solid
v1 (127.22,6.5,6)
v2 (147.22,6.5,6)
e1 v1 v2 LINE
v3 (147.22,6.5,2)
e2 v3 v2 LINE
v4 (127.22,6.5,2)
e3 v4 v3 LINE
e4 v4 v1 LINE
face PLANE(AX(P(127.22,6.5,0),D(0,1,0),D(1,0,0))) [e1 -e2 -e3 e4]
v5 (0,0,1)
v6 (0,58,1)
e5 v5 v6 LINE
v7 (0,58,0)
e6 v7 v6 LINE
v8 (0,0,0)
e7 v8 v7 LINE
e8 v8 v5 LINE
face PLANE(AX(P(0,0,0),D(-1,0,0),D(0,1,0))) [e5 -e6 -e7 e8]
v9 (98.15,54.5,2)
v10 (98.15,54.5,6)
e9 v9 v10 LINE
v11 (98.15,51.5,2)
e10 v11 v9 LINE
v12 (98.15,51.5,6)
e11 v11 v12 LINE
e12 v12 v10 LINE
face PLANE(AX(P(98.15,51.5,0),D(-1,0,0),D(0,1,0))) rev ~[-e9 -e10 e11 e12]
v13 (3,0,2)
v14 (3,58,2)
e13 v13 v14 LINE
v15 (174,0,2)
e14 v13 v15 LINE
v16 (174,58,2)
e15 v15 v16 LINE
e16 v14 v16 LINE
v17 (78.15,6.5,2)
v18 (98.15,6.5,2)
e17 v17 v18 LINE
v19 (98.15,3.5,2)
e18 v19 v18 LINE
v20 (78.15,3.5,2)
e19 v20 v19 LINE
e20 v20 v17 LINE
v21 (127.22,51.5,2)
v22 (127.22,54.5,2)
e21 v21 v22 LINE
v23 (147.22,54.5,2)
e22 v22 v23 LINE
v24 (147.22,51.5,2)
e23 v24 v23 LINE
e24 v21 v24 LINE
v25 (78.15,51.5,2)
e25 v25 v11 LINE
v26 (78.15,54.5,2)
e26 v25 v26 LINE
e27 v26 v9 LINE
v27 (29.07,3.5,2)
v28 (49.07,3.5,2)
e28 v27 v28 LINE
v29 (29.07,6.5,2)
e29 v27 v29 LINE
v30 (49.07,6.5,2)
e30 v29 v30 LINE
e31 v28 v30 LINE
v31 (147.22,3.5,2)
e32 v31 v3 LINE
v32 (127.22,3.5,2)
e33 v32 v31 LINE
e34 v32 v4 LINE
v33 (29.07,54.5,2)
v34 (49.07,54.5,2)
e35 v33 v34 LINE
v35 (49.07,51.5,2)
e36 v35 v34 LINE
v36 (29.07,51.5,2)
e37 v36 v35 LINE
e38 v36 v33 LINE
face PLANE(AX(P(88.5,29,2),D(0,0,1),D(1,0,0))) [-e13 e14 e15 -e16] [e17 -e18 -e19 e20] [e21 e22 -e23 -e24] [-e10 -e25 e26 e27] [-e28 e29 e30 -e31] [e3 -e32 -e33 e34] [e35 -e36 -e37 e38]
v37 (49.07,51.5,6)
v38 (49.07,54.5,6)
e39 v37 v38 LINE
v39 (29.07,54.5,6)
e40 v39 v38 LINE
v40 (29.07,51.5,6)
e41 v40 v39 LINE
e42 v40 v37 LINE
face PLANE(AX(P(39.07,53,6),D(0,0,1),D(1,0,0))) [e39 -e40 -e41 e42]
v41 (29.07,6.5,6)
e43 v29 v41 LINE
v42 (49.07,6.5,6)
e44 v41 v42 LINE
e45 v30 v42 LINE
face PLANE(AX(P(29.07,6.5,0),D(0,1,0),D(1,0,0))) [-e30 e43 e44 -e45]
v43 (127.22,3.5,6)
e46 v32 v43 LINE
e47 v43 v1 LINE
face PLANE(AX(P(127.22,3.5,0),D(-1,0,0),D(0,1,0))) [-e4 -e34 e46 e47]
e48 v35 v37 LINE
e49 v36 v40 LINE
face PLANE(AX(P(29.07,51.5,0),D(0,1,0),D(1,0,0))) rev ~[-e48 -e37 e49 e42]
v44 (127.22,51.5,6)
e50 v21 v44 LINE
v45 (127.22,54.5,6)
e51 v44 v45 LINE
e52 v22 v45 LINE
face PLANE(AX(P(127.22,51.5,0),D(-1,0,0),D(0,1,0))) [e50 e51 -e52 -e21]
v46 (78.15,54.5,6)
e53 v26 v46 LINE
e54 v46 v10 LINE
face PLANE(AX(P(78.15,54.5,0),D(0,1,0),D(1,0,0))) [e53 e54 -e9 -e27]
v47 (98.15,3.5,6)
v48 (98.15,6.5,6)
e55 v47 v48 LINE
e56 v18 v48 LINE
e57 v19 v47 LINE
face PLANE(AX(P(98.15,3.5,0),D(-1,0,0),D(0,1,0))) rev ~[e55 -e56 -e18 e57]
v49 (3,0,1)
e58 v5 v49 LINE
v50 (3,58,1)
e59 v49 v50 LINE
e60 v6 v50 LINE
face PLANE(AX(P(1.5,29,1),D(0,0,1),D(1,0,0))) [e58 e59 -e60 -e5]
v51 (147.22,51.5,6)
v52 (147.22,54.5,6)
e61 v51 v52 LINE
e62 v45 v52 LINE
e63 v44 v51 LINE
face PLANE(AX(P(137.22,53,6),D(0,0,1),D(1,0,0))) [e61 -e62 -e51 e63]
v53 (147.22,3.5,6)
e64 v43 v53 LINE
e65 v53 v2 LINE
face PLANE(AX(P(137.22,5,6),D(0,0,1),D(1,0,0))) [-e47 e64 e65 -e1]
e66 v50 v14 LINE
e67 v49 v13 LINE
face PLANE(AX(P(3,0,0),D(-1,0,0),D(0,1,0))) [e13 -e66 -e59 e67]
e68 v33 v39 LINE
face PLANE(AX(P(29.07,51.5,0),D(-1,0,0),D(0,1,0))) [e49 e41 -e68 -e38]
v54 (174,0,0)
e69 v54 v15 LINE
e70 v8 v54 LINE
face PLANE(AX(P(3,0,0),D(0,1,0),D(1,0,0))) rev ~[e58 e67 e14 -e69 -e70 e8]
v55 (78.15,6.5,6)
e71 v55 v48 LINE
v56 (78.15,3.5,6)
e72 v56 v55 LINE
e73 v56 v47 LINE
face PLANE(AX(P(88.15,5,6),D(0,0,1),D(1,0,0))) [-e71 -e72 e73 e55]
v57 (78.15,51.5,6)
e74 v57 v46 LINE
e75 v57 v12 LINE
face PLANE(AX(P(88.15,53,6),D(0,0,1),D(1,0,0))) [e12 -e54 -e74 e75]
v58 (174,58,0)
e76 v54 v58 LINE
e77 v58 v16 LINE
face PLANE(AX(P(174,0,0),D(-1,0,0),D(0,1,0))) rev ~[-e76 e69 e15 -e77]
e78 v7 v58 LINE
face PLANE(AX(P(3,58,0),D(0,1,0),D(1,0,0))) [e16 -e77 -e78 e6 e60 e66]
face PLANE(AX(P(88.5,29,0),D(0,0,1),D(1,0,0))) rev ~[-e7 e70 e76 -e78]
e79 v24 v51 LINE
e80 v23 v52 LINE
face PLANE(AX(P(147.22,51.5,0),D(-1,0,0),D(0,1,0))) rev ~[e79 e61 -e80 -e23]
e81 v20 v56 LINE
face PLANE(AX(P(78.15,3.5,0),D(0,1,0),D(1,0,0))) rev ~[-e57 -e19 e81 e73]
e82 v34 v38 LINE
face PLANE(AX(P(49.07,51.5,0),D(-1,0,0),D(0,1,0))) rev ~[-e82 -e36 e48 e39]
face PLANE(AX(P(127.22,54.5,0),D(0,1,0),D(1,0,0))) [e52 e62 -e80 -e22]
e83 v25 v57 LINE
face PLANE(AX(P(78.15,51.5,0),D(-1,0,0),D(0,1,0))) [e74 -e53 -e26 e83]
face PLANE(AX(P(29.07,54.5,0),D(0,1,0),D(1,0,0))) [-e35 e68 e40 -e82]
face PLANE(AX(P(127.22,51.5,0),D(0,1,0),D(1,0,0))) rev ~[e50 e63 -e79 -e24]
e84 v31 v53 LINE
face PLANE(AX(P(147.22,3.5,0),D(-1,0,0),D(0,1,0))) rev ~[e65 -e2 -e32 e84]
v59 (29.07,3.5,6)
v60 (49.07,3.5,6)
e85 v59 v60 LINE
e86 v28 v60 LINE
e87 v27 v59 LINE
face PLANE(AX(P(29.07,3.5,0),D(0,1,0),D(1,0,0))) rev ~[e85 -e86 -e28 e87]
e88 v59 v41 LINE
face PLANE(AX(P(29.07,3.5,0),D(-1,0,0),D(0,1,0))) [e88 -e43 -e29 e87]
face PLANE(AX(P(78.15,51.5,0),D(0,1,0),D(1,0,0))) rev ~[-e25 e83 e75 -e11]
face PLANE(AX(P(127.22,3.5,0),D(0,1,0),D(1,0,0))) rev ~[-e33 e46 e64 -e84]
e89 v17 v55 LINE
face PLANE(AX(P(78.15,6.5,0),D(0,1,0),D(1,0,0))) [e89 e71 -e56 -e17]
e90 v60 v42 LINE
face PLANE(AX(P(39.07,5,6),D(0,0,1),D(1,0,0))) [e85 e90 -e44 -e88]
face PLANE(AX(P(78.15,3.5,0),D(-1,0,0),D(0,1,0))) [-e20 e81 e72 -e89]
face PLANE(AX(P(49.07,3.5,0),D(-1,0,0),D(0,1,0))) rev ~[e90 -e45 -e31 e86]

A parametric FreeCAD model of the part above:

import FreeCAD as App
import Part
import Sketcher
Q = App.Units.Quantity

doc = App.newDocument("Part")
body = doc.addObject("PartDesign::Body", "Body")

# Sketch on XY plane
sketch1 = doc.addObject("Sketcher::SketchObject", "Sketch")
body.addObject(sketch1)
sketch1.AttachmentSupport = (doc.XY_Plane, [""])
sketch1.MapMode = "FlatFace"
sketch1.addGeometry([
    Part.LineSegment(App.Vector(127.2, 54.5, 0), App.Vector(127.2, 51.5, 0)),
    Part.LineSegment(App.Vector(127.2, 51.5, 0), App.Vector(147.2, 51.5, 0)),
    Part.LineSegment(App.Vector(147.2, 51.5, 0), App.Vector(147.2, 54.5, 0)),
    Part.LineSegment(App.Vector(147.2, 54.5, 0), App.Vector(127.2, 54.5, 0)),
], False)
sketch1.addConstraint([
    Sketcher.Constraint("Coincident", 0, 2, 1, 1),
    Sketcher.Constraint("Coincident", 1, 2, 2, 1),
    Sketcher.Constraint("Coincident", 2, 2, 3, 1),
    Sketcher.Constraint("Coincident", 3, 2, 0, 1),
    Sketcher.Constraint("Vertical", 0),
    Sketcher.Constraint("Horizontal", 1),
    Sketcher.Constraint("Vertical", 2),
    Sketcher.Constraint("Horizontal", 3),
    Sketcher.Constraint("DistanceX", 1, 1, 1, 2, Q("20 mm")),
    Sketcher.Constraint("DistanceY", 0, 2, 0, 1, Q("3 mm")),
    Sketcher.Constraint("DistanceY", -1, 1, 0, 2, Q("51.5 mm")),
    Sketcher.Constraint("DistanceX", -1, 1, 0, 2, Q("127.22 mm")),
])
pad1 = doc.addObject("PartDesign::Pad", "Pad")
body.addObject(pad1)
pad1.Profile = sketch1
pad1.Length = 6
body2 = doc.addObject("PartDesign::Body", "Body001")

# Sketch on XY plane
sketch2 = doc.addObject("Sketcher::SketchObject", "Sketch001")
body2.addObject(sketch2)
sketch2.AttachmentSupport = (doc.getObject("XY_Plane001"), [""])
sketch2.MapMode = "FlatFace"
sketch2.addGeometry([
    Part.LineSegment(App.Vector(78.2, 54.5, 0), App.Vector(78.2, 51.5, 0)),
    Part.LineSegment(App.Vector(78.2, 51.5, 0), App.Vector(98.2, 51.5, 0)),
    Part.LineSegment(App.Vector(98.2, 51.5, 0), App.Vector(98.2, 54.5, 0)),
    Part.LineSegment(App.Vector(98.2, 54.5, 0), App.Vector(78.2, 54.5, 0)),
], False)
sketch2.addConstraint([
    Sketcher.Constraint("Coincident", 0, 2, 1, 1),
    Sketcher.Constraint("Coincident", 1, 2, 2, 1),
    Sketcher.Constraint("Coincident", 2, 2, 3, 1),
    Sketcher.Constraint("Coincident", 3, 2, 0, 1),
    Sketcher.Constraint("Vertical", 0),
    Sketcher.Constraint("Horizontal", 1),
    Sketcher.Constraint("Vertical", 2),
    Sketcher.Constraint("Horizontal", 3),
    Sketcher.Constraint("DistanceX", 1, 1, 1, 2, Q("20 mm")),
    Sketcher.Constraint("DistanceY", 0, 2, 0, 1, Q("3 mm")),
    Sketcher.Constraint("DistanceY", -1, 1, 0, 2, Q("51.5 mm")),
    Sketcher.Constraint("DistanceX", -1, 1, 0, 2, Q("78.15 mm")),
])
pad2 = doc.addObject("PartDesign::Pad", "Pad001")
body2.addObject(pad2)
pad2.Profile = sketch2
pad2.Length = 6
body3 = doc.addObject("PartDesign::Body", "Body002")

# Sketch on XY plane
sketch3 = doc.addObject("Sketcher::SketchObject", "Sketch002")
body3.addObject(sketch3)
sketch3.AttachmentSupport = (doc.getObject("XY_Plane002"), [""])
sketch3.MapMode = "FlatFace"
sketch3.addGeometry([
    Part.LineSegment(App.Vector(29.1, 54.5, 0), App.Vector(29.1, 51.5, 0)),
    Part.LineSegment(App.Vector(29.1, 51.5, 0), App.Vector(49.1, 51.5, 0)),
    Part.LineSegment(App.Vector(49.1, 51.5, 0), App.Vector(49.1, 54.5, 0)),
    Part.LineSegment(App.Vector(49.1, 54.5, 0), App.Vector(29.1, 54.5, 0)),
], False)
sketch3.addConstraint([
    Sketcher.Constraint("Coincident", 0, 2, 1, 1),
    Sketcher.Constraint("Coincident", 1, 2, 2, 1),
    Sketcher.Constraint("Coincident", 2, 2, 3, 1),
    Sketcher.Constraint("Coincident", 3, 2, 0, 1),
    Sketcher.Constraint("Vertical", 0),
    Sketcher.Constraint("Horizontal", 1),
    Sketcher.Constraint("Vertical", 2),
    Sketcher.Constraint("Horizontal", 3),
    Sketcher.Constraint("DistanceX", 1, 1, 1, 2, Q("20 mm")),
    Sketcher.Constraint("DistanceY", 0, 2, 0, 1, Q("3 mm")),
    Sketcher.Constraint("DistanceY", -1, 1, 0, 2, Q("51.5 mm")),
    Sketcher.Constraint("DistanceX", -1, 1, 0, 2, Q("29.07 mm")),
])
pad3 = doc.addObject("PartDesign::Pad", "Pad002")
body3.addObject(pad3)
pad3.Profile = sketch3
pad3.Length = 6
body4 = doc.addObject("PartDesign::Body", "Body003")

# Sketch on XY plane
sketch4 = doc.addObject("Sketcher::SketchObject", "Sketch003")
body4.addObject(sketch4)
sketch4.AttachmentSupport = (doc.getObject("XY_Plane003"), [""])
sketch4.MapMode = "FlatFace"
sketch4.addGeometry([
    Part.LineSegment(App.Vector(127.2, 6.5, 0), App.Vector(127.2, 3.5, 0)),
    Part.LineSegment(App.Vector(127.2, 3.5, 0), App.Vector(147.2, 3.5, 0)),
    Part.LineSegment(App.Vector(147.2, 3.5, 0), App.Vector(147.2, 6.5, 0)),
    Part.LineSegment(App.Vector(147.2, 6.5, 0), App.Vector(127.2, 6.5, 0)),
], False)
sketch4.addConstraint([
    Sketcher.Constraint("Coincident", 0, 2, 1, 1),
    Sketcher.Constraint("Coincident", 1, 2, 2, 1),
    Sketcher.Constraint("Coincident", 2, 2, 3, 1),
    Sketcher.Constraint("Coincident", 3, 2, 0, 1),
    Sketcher.Constraint("Vertical", 0),
    Sketcher.Constraint("Horizontal", 1),
    Sketcher.Constraint("Vertical", 2),
    Sketcher.Constraint("Horizontal", 3),
    Sketcher.Constraint("DistanceX", 1, 1, 1, 2, Q("20 mm")),
    Sketcher.Constraint("DistanceY", 0, 2, 0, 1, Q("3 mm")),
    Sketcher.Constraint("DistanceY", -1, 1, 0, 2, Q("3.5 mm")),
    Sketcher.Constraint("DistanceX", -1, 1, 0, 2, Q("127.22 mm")),
])
pad4 = doc.addObject("PartDesign::Pad", "Pad003")
body4.addObject(pad4)
pad4.Profile = sketch4
pad4.Length = 6
body5 = doc.addObject("PartDesign::Body", "Body004")

# Sketch on XY plane
sketch5 = doc.addObject("Sketcher::SketchObject", "Sketch004")
body5.addObject(sketch5)
sketch5.AttachmentSupport = (doc.getObject("XY_Plane004"), [""])
sketch5.MapMode = "FlatFace"
sketch5.addGeometry([
    Part.LineSegment(App.Vector(78.2, 6.5, 0), App.Vector(78.2, 3.5, 0)),
    Part.LineSegment(App.Vector(78.2, 3.5, 0), App.Vector(98.2, 3.5, 0)),
    Part.LineSegment(App.Vector(98.2, 3.5, 0), App.Vector(98.2, 6.5, 0)),
    Part.LineSegment(App.Vector(98.2, 6.5, 0), App.Vector(78.2, 6.5, 0)),
], False)
sketch5.addConstraint([
    Sketcher.Constraint("Coincident", 0, 2, 1, 1),
    Sketcher.Constraint("Coincident", 1, 2, 2, 1),
    Sketcher.Constraint("Coincident", 2, 2, 3, 1),
    Sketcher.Constraint("Coincident", 3, 2, 0, 1),
    Sketcher.Constraint("Vertical", 0),
    Sketcher.Constraint("Horizontal", 1),
    Sketcher.Constraint("Vertical", 2),
    Sketcher.Constraint("Horizontal", 3),
    Sketcher.Constraint("DistanceX", 1, 1, 1, 2, Q("20 mm")),
    Sketcher.Constraint("DistanceY", 0, 2, 0, 1, Q("3 mm")),
    Sketcher.Constraint("DistanceY", -1, 1, 0, 2, Q("3.5 mm")),
    Sketcher.Constraint("DistanceX", -1, 1, 0, 2, Q("78.15 mm")),
])
pad5 = doc.addObject("PartDesign::Pad", "Pad004")
body5.addObject(pad5)
pad5.Profile = sketch5
pad5.Length = 6
body6 = doc.addObject("PartDesign::Body", "Body005")

# Sketch on XY plane
sketch6 = doc.addObject("Sketcher::SketchObject", "Sketch005")
body6.addObject(sketch6)
sketch6.AttachmentSupport = (doc.getObject("XY_Plane005"), [""])
sketch6.MapMode = "FlatFace"
sketch6.addGeometry([
    Part.LineSegment(App.Vector(29.1, 6.5, 0), App.Vector(29.1, 3.5, 0)),
    Part.LineSegment(App.Vector(29.1, 3.5, 0), App.Vector(49.1, 3.5, 0)),
    Part.LineSegment(App.Vector(49.1, 3.5, 0), App.Vector(49.1, 6.5, 0)),
    Part.LineSegment(App.Vector(49.1, 6.5, 0), App.Vector(29.1, 6.5, 0)),
], False)
sketch6.addConstraint([
    Sketcher.Constraint("Coincident", 0, 2, 1, 1),
    Sketcher.Constraint("Coincident", 1, 2, 2, 1),
    Sketcher.Constraint("Coincident", 2, 2, 3, 1),
    Sketcher.Constraint("Coincident", 3, 2, 0, 1),
    Sketcher.Constraint("Vertical", 0),
    Sketcher.Constraint("Horizontal", 1),
    Sketcher.Constraint("Vertical", 2),
    Sketcher.Constraint("Horizontal", 3),
    Sketcher.Constraint("DistanceX", 1, 1, 1, 2, Q("20 mm")),
    Sketcher.Constraint("DistanceY", 0, 2, 0, 1, Q("3 mm")),
    Sketcher.Constraint("DistanceY", -1, 1, 0, 2, Q("3.5 mm")),
    Sketcher.Constraint("DistanceX", -1, 1, 0, 2, Q("29.07 mm")),
])
pad6 = doc.addObject("PartDesign::Pad", "Pad005")
body6.addObject(pad6)
pad6.Profile = sketch6
pad6.Length = 6
body7 = doc.addObject("PartDesign::Body", "Body006")

# Sketch on XY plane
sketch7 = doc.addObject("Sketcher::SketchObject", "Sketch006")
body7.addObject(sketch7)
sketch7.AttachmentSupport = (doc.getObject("XY_Plane006"), [""])
sketch7.MapMode = "FlatFace"
sketch7.addGeometry([
    Part.LineSegment(App.Vector(3, 58, 0), App.Vector(3, 0, 0)),
    Part.LineSegment(App.Vector(3, 0, 0), App.Vector(174, 0, 0)),
    Part.LineSegment(App.Vector(174, 0, 0), App.Vector(174, 58, 0)),
    Part.LineSegment(App.Vector(174, 58, 0), App.Vector(3, 58, 0)),
], False)
sketch7.addConstraint([
    Sketcher.Constraint("Coincident", 0, 2, 1, 1),
    Sketcher.Constraint("Coincident", 1, 2, 2, 1),
    Sketcher.Constraint("Coincident", 2, 2, 3, 1),
    Sketcher.Constraint("Coincident", 3, 2, 0, 1),
    Sketcher.Constraint("Vertical", 0),
    Sketcher.Constraint("Horizontal", 1),
    Sketcher.Constraint("Vertical", 2),
    Sketcher.Constraint("Horizontal", 3),
    Sketcher.Constraint("PointOnObject", 0, 2, -1),
    Sketcher.Constraint("DistanceX", 1, 1, 1, 2, Q("171 mm")),
    Sketcher.Constraint("DistanceY", 0, 2, 0, 1, Q("58 mm")),
    Sketcher.Constraint("DistanceX", -1, 1, 0, 2, Q("3 mm")),
])
pad7 = doc.addObject("PartDesign::Pad", "Pad006")
body7.addObject(pad7)
pad7.Profile = sketch7
pad7.Length = 2
body8 = doc.addObject("PartDesign::Body", "Body007")
body8.AllowCompound = True

# Sketch on XY plane
sketch8 = doc.addObject("Sketcher::SketchObject", "Sketch007")
body8.addObject(sketch8)
sketch8.AttachmentSupport = (doc.getObject("XY_Plane007"), [""])
sketch8.MapMode = "FlatFace"
sketch8.addGeometry([
    Part.LineSegment(App.Vector(0, 58, 0), App.Vector(0, 0, 0)),
    Part.LineSegment(App.Vector(0, 0, 0), App.Vector(3, 0, 0)),
    Part.LineSegment(App.Vector(3, 0, 0), App.Vector(3, 58, 0)),
    Part.LineSegment(App.Vector(3, 58, 0), App.Vector(0, 58, 0)),
], False)
sketch8.addConstraint([
    Sketcher.Constraint("Coincident", 0, 2, 1, 1),
    Sketcher.Constraint("Coincident", 1, 2, 2, 1),
    Sketcher.Constraint("Coincident", 2, 2, 3, 1),
    Sketcher.Constraint("Coincident", 3, 2, 0, 1),
    Sketcher.Constraint("Vertical", 0),
    Sketcher.Constraint("Horizontal", 1),
    Sketcher.Constraint("Vertical", 2),
    Sketcher.Constraint("Horizontal", 3),
    Sketcher.Constraint("Coincident", 0, 2, -1, 1),
    Sketcher.Constraint("DistanceX", 1, 1, 1, 2, Q("3 mm")),
    Sketcher.Constraint("DistanceY", 0, 2, 0, 1, Q("58 mm")),
])
pad8 = doc.addObject("PartDesign::Pad", "Pad007")
body8.addObject(pad8)
pad8.Profile = sketch8
pad8.Length = 1
doc.recompute()

boolean = doc.addObject("PartDesign::Boolean", "Boolean")
body8.addObject(boolean)
boolean.Type = "Fuse"
boolean.addObjects([body])
doc.recompute()

boolean2 = doc.addObject("PartDesign::Boolean", "Boolean001")
body8.addObject(boolean2)
boolean2.Type = "Fuse"
boolean2.addObjects([body2])
doc.recompute()

boolean3 = doc.addObject("PartDesign::Boolean", "Boolean002")
body8.addObject(boolean3)
boolean3.Type = "Fuse"
boolean3.addObjects([body3])
doc.recompute()

boolean4 = doc.addObject("PartDesign::Boolean", "Boolean003")
body8.addObject(boolean4)
boolean4.Type = "Fuse"
boolean4.addObjects([body4])
doc.recompute()

boolean5 = doc.addObject("PartDesign::Boolean", "Boolean004")
body8.addObject(boolean5)
boolean5.Type = "Fuse"
boolean5.addObjects([body5])
doc.recompute()

boolean6 = doc.addObject("PartDesign::Boolean", "Boolean005")
body8.addObject(boolean6)
boolean6.Type = "Fuse"
boolean6.addObjects([body6])
doc.recompute()

boolean7 = doc.addObject("PartDesign::Boolean", "Boolean006")
body8.addObject(boolean7)
boolean7.Type = "Fuse"
boolean7.addObjects([body7])

doc.recompute()
